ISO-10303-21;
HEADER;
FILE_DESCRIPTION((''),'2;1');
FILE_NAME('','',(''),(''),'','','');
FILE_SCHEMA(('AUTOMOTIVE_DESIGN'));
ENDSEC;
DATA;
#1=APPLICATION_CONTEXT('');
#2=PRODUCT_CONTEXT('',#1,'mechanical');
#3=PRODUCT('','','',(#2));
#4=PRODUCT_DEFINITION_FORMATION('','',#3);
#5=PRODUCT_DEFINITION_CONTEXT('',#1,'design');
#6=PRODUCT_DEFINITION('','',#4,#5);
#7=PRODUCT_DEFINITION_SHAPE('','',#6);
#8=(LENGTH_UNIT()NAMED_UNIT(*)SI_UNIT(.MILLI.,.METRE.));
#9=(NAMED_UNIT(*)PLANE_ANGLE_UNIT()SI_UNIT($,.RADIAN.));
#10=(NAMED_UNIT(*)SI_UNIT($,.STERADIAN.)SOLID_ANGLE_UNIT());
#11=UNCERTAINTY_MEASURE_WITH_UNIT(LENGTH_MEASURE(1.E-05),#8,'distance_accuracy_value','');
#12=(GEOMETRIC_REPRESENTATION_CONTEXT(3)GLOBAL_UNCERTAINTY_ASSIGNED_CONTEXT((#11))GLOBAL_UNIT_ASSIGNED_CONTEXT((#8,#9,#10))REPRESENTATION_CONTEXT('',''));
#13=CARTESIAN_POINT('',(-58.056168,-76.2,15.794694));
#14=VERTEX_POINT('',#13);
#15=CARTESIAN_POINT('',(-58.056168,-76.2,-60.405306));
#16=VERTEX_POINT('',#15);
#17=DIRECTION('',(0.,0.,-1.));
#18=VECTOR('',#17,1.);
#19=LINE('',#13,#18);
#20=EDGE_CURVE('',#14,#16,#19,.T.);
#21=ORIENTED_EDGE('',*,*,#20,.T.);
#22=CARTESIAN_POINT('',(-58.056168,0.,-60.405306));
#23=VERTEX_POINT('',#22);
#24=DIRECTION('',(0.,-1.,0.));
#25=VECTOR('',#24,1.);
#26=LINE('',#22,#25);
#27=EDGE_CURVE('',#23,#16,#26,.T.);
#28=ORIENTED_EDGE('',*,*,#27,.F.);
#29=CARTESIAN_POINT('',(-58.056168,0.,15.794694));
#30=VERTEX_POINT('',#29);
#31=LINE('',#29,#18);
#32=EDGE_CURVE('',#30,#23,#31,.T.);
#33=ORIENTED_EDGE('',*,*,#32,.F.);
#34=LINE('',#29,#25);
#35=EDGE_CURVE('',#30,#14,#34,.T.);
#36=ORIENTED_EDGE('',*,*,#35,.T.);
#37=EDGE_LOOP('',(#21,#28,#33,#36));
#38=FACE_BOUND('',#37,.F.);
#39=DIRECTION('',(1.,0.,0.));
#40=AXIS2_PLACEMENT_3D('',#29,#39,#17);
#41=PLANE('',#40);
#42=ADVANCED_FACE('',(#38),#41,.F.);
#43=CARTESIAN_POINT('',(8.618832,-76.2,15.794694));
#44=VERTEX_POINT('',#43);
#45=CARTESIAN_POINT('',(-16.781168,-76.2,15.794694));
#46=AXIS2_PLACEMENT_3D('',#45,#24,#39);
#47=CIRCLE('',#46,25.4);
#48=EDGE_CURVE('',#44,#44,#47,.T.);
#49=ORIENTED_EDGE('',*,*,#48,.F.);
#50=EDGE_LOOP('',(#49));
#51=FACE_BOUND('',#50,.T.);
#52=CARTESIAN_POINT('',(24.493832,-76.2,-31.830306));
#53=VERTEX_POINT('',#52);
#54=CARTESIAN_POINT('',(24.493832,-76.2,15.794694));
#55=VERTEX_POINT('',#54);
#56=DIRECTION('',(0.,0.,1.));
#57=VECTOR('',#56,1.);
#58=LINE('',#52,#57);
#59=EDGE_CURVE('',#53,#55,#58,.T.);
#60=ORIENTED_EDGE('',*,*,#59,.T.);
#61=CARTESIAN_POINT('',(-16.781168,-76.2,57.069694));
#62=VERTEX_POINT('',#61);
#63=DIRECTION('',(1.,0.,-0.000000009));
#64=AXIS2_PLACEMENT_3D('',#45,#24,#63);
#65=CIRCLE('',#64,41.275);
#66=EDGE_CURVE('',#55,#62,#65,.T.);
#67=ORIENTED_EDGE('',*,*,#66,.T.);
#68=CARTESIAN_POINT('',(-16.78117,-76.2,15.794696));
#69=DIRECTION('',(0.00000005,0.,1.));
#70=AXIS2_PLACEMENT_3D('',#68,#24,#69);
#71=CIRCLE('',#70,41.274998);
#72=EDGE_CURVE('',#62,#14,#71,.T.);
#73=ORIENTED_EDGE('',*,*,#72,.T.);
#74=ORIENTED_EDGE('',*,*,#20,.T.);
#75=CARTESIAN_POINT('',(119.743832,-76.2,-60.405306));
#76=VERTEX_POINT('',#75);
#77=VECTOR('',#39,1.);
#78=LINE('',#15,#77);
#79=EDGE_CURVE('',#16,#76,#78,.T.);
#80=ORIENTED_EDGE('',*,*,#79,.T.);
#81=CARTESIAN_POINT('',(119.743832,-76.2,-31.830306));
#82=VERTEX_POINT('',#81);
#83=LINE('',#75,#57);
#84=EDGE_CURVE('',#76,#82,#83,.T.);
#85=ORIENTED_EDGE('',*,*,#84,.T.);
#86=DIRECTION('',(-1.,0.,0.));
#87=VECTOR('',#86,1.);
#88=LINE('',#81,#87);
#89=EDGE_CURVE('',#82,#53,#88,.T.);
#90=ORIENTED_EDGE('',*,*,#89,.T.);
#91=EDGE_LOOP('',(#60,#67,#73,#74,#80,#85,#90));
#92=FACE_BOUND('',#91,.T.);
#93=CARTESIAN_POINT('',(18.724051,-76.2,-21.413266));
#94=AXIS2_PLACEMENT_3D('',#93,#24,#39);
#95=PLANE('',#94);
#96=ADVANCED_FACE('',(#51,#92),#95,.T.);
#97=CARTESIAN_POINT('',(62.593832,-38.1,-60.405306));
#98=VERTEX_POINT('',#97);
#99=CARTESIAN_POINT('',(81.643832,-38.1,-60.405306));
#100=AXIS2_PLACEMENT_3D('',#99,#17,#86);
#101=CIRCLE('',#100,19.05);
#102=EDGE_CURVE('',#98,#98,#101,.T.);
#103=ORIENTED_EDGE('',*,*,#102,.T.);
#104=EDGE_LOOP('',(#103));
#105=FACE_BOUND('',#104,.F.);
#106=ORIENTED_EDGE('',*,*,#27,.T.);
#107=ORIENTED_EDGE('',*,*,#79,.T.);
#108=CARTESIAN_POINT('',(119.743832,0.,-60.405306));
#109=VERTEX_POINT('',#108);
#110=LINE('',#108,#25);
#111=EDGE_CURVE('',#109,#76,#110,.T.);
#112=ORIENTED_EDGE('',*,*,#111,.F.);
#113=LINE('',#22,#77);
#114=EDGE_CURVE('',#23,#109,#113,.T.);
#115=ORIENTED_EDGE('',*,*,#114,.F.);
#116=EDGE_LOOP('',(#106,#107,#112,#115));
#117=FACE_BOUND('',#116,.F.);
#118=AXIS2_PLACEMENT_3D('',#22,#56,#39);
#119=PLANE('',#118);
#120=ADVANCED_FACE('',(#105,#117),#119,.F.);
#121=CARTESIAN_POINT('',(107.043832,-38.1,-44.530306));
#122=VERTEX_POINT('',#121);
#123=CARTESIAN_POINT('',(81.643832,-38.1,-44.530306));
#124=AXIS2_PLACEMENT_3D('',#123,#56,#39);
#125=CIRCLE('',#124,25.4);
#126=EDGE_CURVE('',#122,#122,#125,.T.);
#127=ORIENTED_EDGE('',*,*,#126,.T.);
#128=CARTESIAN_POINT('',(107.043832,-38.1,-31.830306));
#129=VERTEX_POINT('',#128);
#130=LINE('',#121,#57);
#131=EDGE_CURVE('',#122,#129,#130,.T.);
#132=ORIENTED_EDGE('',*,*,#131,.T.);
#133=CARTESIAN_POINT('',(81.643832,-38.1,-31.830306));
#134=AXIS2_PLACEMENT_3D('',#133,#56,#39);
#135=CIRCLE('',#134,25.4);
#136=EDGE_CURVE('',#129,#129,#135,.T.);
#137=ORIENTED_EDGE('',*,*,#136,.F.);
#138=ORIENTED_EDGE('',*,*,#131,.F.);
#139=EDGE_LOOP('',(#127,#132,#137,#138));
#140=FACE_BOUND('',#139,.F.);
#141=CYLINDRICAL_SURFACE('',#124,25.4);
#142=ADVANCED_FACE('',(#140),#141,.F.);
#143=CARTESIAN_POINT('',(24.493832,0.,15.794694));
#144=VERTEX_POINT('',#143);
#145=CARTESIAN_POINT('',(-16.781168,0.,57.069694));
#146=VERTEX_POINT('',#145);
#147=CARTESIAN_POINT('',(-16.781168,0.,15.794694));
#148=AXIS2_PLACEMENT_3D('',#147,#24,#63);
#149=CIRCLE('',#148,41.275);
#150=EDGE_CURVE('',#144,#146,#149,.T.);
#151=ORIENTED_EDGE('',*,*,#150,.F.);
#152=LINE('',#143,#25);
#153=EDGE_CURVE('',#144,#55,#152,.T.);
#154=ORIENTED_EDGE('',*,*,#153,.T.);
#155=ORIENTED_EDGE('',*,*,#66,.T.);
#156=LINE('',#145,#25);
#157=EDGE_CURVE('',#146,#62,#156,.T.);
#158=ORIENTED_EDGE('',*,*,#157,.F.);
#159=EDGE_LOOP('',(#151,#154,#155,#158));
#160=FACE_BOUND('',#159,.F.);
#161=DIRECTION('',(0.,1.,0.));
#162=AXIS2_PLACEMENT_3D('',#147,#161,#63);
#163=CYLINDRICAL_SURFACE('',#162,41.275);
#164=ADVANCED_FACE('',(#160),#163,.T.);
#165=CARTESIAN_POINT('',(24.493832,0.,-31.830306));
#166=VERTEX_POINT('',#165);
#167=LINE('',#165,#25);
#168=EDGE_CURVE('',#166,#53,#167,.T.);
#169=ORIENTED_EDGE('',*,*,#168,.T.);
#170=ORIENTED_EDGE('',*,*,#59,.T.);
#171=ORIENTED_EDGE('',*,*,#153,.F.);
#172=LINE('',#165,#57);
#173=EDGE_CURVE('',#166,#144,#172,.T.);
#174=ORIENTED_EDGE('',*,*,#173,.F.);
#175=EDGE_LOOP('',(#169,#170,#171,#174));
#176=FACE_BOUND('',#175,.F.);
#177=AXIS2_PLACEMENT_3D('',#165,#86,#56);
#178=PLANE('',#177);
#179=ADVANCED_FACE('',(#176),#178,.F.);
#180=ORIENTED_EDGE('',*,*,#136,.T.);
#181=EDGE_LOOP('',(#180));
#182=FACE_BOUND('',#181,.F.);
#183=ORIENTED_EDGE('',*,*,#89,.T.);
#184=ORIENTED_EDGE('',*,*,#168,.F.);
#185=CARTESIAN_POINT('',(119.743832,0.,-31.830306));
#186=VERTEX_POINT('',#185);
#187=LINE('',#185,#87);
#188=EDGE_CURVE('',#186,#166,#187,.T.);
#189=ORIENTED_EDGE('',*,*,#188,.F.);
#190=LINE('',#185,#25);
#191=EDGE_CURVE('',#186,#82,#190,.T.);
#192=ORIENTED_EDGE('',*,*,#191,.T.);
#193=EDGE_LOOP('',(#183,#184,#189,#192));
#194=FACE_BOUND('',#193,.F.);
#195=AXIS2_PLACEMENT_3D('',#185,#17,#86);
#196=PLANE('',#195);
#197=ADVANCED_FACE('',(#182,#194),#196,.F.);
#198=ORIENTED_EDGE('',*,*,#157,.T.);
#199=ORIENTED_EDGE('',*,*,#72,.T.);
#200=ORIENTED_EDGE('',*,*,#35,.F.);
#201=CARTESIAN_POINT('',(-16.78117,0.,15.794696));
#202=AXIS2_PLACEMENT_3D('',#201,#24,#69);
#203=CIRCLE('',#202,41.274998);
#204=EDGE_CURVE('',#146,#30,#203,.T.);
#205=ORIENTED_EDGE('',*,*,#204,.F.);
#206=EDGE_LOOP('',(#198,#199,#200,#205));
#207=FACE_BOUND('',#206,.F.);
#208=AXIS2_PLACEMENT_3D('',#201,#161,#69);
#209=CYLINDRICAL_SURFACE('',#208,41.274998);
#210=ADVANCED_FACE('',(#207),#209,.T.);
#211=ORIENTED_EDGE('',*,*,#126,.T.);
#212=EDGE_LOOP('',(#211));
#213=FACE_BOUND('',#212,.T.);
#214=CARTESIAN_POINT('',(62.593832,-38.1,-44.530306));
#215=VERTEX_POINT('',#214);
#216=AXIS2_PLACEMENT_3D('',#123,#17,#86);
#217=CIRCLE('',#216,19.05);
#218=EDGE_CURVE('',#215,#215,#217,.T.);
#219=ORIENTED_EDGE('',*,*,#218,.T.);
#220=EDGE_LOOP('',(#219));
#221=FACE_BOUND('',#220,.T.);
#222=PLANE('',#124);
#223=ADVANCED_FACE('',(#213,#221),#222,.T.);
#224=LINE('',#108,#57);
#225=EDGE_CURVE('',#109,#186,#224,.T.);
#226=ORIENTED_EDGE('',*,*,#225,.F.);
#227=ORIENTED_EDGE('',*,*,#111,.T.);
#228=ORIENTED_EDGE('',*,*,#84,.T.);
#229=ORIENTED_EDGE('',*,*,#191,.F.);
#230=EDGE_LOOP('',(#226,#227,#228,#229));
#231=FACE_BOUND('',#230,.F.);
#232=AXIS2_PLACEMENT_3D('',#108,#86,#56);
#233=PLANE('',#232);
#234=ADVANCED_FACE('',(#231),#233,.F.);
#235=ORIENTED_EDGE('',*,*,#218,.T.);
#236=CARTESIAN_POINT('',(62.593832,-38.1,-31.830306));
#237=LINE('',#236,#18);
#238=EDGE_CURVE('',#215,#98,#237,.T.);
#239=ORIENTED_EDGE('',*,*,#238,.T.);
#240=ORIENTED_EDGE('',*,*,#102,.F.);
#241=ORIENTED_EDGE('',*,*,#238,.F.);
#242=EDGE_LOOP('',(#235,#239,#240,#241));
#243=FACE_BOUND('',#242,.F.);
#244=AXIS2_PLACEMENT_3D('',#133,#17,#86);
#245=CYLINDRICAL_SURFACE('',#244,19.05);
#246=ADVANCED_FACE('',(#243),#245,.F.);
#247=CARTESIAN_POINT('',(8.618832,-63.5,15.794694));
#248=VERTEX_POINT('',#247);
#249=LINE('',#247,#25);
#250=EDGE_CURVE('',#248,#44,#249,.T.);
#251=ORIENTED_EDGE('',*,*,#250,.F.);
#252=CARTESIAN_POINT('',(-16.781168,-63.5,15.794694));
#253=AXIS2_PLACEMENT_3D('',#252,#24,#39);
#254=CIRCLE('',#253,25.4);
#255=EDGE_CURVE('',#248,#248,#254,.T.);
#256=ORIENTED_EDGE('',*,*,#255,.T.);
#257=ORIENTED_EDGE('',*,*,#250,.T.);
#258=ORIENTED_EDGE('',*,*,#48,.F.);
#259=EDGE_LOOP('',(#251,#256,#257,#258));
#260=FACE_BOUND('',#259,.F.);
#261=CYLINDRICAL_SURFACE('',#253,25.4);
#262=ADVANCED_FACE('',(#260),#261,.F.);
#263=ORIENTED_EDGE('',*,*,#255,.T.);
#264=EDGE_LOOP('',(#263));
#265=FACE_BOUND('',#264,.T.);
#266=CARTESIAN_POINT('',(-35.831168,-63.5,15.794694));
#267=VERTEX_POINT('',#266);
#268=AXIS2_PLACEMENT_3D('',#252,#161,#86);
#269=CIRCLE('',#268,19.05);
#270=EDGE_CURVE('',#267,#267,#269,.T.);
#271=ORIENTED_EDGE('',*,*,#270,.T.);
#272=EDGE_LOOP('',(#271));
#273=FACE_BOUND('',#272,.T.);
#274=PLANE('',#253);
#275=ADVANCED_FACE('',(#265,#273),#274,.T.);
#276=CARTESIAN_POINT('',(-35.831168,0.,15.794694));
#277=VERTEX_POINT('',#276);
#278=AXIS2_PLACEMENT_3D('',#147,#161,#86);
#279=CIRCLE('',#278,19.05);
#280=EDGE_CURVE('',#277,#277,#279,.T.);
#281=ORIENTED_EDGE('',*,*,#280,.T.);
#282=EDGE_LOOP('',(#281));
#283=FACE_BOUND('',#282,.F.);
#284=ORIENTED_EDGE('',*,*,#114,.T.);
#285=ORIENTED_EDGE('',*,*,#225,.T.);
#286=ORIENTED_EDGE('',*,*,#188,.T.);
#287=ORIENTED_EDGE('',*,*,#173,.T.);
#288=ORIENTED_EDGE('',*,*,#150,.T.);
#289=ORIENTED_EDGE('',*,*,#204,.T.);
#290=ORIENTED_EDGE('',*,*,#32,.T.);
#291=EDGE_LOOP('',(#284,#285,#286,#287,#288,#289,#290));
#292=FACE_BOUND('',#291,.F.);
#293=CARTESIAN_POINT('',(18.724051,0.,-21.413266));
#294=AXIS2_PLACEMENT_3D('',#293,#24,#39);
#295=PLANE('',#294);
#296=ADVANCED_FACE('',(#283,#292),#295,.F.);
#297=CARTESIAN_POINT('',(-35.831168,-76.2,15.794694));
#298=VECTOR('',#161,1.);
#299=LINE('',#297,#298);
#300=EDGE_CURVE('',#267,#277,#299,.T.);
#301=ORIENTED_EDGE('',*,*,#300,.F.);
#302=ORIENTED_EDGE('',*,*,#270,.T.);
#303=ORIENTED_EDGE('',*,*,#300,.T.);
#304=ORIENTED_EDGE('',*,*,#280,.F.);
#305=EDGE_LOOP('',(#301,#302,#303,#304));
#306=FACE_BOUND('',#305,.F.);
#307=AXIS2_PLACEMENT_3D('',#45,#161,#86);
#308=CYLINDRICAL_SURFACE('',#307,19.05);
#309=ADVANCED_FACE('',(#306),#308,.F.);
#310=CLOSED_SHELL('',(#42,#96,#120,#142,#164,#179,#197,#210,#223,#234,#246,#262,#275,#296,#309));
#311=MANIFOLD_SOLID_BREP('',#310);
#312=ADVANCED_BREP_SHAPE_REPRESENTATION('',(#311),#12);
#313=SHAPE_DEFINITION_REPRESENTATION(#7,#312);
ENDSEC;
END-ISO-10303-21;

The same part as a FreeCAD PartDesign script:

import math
import FreeCAD as App
import Part
import Sketcher
Q = App.Units.Quantity

doc = App.newDocument("Part")
body = doc.addObject("PartDesign::Body", "Body")

sketch1 = body.newObject("Sketcher::SketchObject", "Sketch")
sketch1.AttachmentSupport = (doc.getObject("XZ_Plane"), [""])
sketch1.MapMode = "FlatFace"
sketch1.addGeometry([
    Part.LineSegment(App.Vector(-58, 16, 0), App.Vector(-58, -60, 0)),
    Part.LineSegment(App.Vector(-58, -60, 0), App.Vector(120, -60, 0)),
    Part.LineSegment(App.Vector(120, -60, 0), App.Vector(120, -32, 0)),
    Part.LineSegment(App.Vector(120, -32, 0), App.Vector(24, -32, 0)),
    Part.LineSegment(App.Vector(24, -32, 0), App.Vector(24, 16, 0)),
    Part.ArcOfCircle(Part.Circle(App.Vector(-17, 16, 0), App.Vector(0, 0, 1), 41), math.radians(0), math.radians(90)),
    Part.ArcOfCircle(Part.Circle(App.Vector(-17, 16, 0), App.Vector(0, 0, 1), 41), math.radians(90), math.radians(180)),
], False)
sketch1.addConstraint([
    Sketcher.Constraint("Coincident", 0, 2, 1, 1),
    Sketcher.Constraint("Coincident", 1, 2, 2, 1),
    Sketcher.Constraint("Coincident", 2, 2, 3, 1),
    Sketcher.Constraint("Coincident", 3, 2, 4, 1),
    Sketcher.Constraint("Tangent", 4, 2, 5, 1),
    Sketcher.Constraint("Tangent", 5, 2, 6, 1),
    Sketcher.Constraint("Tangent", 6, 2, 0, 1),
    Sketcher.Constraint("Vertical", 0),
    Sketcher.Constraint("Horizontal", 1),
    Sketcher.Constraint("Vertical", 2),
    Sketcher.Constraint("Horizontal", 3),
    Sketcher.Constraint("Vertical", 4),
    Sketcher.Constraint("Equal", 5, 6),
    Sketcher.Constraint("DistanceX", 1, 1, 1, 2, Q("7 in")),
    Sketcher.Constraint("DistanceY", 0, 2, 0, 1, Q("3 in")),
    Sketcher.Constraint("Radius", 5, Q("1.625 in")),
    Sketcher.Constraint("DistanceY", 3, 2, 5, 2, Q("3.5 in")),
    Sketcher.Constraint("DistanceX", 5, 2, 4, 2, Q("1.625 in")),
    Sketcher.Constraint("DistanceX", 6, 3, -1, 1, 16.78117),
    Sketcher.Constraint("DistanceY", -1, 1, 5, 3, 15.794694),
])
pad1 = body.newObject("PartDesign::Pad", "Pad")
pad1.Profile = sketch1
pad1.Length = Q("3 in")

sketch2 = body.newObject("Sketcher::SketchObject", "Sketch001")
sketch2.AttachmentSupport = (doc.getObject("XZ_Plane"), [""])
sketch2.MapMode = "FlatFace"
sketch2.AttachmentOffset = App.Placement(App.Vector(0, 0, 3 * 25.4), App.Rotation())
sketch2.addGeometry(Part.Circle(App.Vector(-17, 16, 0), App.Vector(0, 0, 1), 19), False)
sketch2.addConstraint([
    Sketcher.Constraint("Diameter", 0, Q("1.5 in")),
    Sketcher.Constraint("DistanceX", 0, 3, -1, 1, 16.781168),
    Sketcher.Constraint("DistanceY", -1, 1, 0, 3, 15.794694),
])
doc.recompute()
hole = body.newObject("PartDesign::Hole", "Hole")
hole.Profile = sketch2
hole.ThreadType = "None"
hole.Diameter = Q("1.5 in")
hole.DepthType = "ThroughAll"
hole.HoleCutType = "Counterbore"
hole.HoleCutDiameter = Q("2 in")
hole.HoleCutDepth = Q("0.5 in")

sketch3 = body.newObject("Sketcher::SketchObject", "Sketch002")
sketch3.AttachmentSupport = (doc.getObject("XY_Plane"), [""])
sketch3.MapMode = "FlatFace"
sketch3.AttachmentOffset = App.Placement(App.Vector(0, 0, -31.830306), App.Rotation())
sketch3.addGeometry(Part.Circle(App.Vector(82, -38, 0), App.Vector(0, 0, 1), 19), False)
sketch3.addConstraint([
    Sketcher.Constraint("Diameter", 0, Q("1.5 in")),
    Sketcher.Constraint("DistanceY", 0, 3, -1, 1, Q("1.5 in")),
    Sketcher.Constraint("DistanceX", -1, 1, 0, 3, 81.643832),
])
doc.recompute()
hole2 = body.newObject("PartDesign::Hole", "Hole001")
hole2.Profile = sketch3
hole2.ThreadType = "None"
hole2.Diameter = Q("1.5 in")
hole2.DepthType = "ThroughAll"
hole2.HoleCutType = "Counterbore"
hole2.HoleCutDiameter = Q("2 in")
hole2.HoleCutDepth = Q("0.5 in")

doc.recompute()
